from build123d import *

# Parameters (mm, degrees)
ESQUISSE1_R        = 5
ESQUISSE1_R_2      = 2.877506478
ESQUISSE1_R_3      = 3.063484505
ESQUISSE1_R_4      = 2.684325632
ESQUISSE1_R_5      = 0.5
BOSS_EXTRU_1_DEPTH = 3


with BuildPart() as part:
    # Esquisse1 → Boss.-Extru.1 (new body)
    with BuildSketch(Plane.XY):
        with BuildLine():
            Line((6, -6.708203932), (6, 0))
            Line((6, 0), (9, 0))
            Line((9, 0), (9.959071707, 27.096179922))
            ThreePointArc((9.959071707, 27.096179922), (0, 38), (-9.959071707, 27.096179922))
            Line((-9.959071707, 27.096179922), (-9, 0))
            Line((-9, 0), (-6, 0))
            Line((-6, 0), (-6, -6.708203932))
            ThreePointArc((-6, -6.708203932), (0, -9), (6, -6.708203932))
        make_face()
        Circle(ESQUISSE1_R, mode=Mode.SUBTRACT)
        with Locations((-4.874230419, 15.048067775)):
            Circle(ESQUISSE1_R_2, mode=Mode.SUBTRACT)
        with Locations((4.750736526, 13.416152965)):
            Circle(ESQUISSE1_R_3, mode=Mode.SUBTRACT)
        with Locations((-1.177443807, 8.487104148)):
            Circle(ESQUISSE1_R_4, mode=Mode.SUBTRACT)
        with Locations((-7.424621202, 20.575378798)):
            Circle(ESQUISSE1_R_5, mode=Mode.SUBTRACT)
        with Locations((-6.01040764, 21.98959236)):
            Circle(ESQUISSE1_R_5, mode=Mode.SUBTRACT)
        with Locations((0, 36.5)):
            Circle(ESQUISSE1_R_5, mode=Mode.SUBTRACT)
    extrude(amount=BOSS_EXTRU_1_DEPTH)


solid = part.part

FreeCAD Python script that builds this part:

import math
import FreeCAD as App
import Part
import Sketcher

V = App.Vector
Q = App.Units.Quantity

doc = App.newDocument("Part")
body = doc.addObject("PartDesign::Body", "Body")

sketch1 = body.newObject("Sketcher::SketchObject", "Sketch")
sketch1.AttachmentSupport = (doc.getObject("XY_Plane"), [""])
sketch1.MapMode = "FlatFace"
sketch1.addGeometry([
    Part.LineSegment(V(6, -6.7, 0), V(6, 0, 0)),
    Part.LineSegment(V(6, 0, 0), V(9, 0, 0)),
    Part.LineSegment(V(9, 0, 0), V(10, 27.1, 0)),
    Part.ArcOfCircle(Part.Circle(V(0, 28, 0), V(0, 0, 1), 10), math.radians(-5), math.radians(185)),
    Part.LineSegment(V(-10, 27.1, 0), V(-9, 0, 0)),
    Part.LineSegment(V(-9, 0, 0), V(-6, 0, 0)),
    Part.LineSegment(V(-6, 0, 0), V(-6, -6.7, 0)),
    Part.ArcOfCircle(Part.Circle(V(0, 0, 0), V(0, 0, 1), 9), math.radians(-132), math.radians(-48)),
    Part.Circle(V(-4.9, 15, 0), V(0, 0, 1), 2.9),
    Part.Circle(V(-1.2, 8.5, 0), V(0, 0, 1), 2.7),
    Part.Circle(V(0, 0, 0), V(0, 0, 1), 5),
    Part.Circle(V(4.8, 13.4, 0), V(0, 0, 1), 3.1),
    Part.Circle(V(-7.4, 20.6, 0), V(0, 0, 1), 0.5),
    Part.Circle(V(-6, 22, 0), V(0, 0, 1), 0.5),
    Part.Circle(V(0, 36.5, 0), V(0, 0, 1), 0.5),
], False)
sketch1.addConstraint([
    Sketcher.Constraint("Coincident", 0, 2, 1, 1),
    Sketcher.Constraint("Coincident", 1, 2, 2, 1),
    Sketcher.Constraint("Coincident", 2, 2, 3, 1),
    Sketcher.Constraint("Coincident", 3, 2, 4, 1),
    Sketcher.Constraint("Coincident", 4, 2, 5, 1),
    Sketcher.Constraint("Coincident", 5, 2, 6, 1),
    Sketcher.Constraint("Coincident", 6, 2, 7, 1),
    Sketcher.Constraint("Coincident", 7, 2, 0, 1),
    Sketcher.Constraint("Vertical", 0),
    Sketcher.Constraint("Horizontal", 1),
    Sketcher.Constraint("Horizontal", 5),
    Sketcher.Constraint("Vertical", 6),
    Sketcher.Constraint("Coincident", 7, 3, -1, 1),
    Sketcher.Constraint("Coincident", 10, 3, -1, 1),
    Sketcher.Constraint("Equal", 12, 13),
    Sketcher.Constraint("Equal", 13, 14),
    Sketcher.Constraint("Symmetric", 1, 2, 4, 2, -1, 1),
    Sketcher.Constraint("Symmetric", 2, 2, 3, 2, -2),
    Sketcher.Constraint("Symmetric", 0, 2, 5, 2, -2),
    Sketcher.Constraint("PointOnObject", 14, 3, -2),
    Sketcher.Constraint("Diameter", 10, Q("10 mm")),
    Sketcher.Constraint("Diameter", 12, Q("1 mm")),
    Sketcher.Constraint("Radius", 3, Q("10 mm")),
    Sketcher.Constraint("Radius", 7, Q("9 mm")),
    Sketcher.Constraint("DistanceX", 1, 1, 1, 2, Q("3 mm")),
    Sketcher.Constraint("DistanceY", -1, 1, 3, 3, Q("28 mm")),
    Sketcher.Constraint("DistanceX", -1, 1, 0, 2, Q("6 mm")),
    Sketcher.Constraint("DistanceY", -1, 1, 14, 3, Q("36.5 mm")),
    Sketcher.Constraint("Diameter", 9, Q("5.368651 mm")),
    Sketcher.Constraint("Diameter", 11, Q("6.126969 mm")),
    Sketcher.Constraint("Diameter", 8, Q("5.755013 mm")),
    Sketcher.Constraint("DistanceY", 12, 3, 2, 2, Q("6.520801 mm")),
    Sketcher.Constraint("DistanceX", 8, 3, -1, 1, Q("4.87423 mm")),
    Sketcher.Constraint("DistanceX", 12, 3, -1, 1, Q("7.424621 mm")),
    Sketcher.Constraint("DistanceY", -1, 1, 12, 3, Q("20.575379 mm")),
    Sketcher.Constraint("DistanceX", 9, 3, 11, 3, Q("5.92818 mm")),
    Sketcher.Constraint("DistanceY", 9, 3, 11, 3, Q("4.929049 mm")),
    Sketcher.Constraint("DistanceY", 8, 3, 12, 3, Q("5.527311 mm")),
    Sketcher.Constraint("DistanceY", 11, 3, 13, 3, Q("8.573439 mm")),
    Sketcher.Constraint("DistanceX", 13, 3, 2, 2, Q("15.969479 mm")),
    Sketcher.Constraint("DistanceX", 9, 3, -1, 1, Q("1.177444 mm")),
    Sketcher.Constraint("DistanceY", -1, 1, 9, 3, Q("8.487104 mm")),
])
pad1 = body.newObject("PartDesign::Pad", "Pad")
pad1.Profile = sketch1
pad1.Length = 3

doc.recompute()
